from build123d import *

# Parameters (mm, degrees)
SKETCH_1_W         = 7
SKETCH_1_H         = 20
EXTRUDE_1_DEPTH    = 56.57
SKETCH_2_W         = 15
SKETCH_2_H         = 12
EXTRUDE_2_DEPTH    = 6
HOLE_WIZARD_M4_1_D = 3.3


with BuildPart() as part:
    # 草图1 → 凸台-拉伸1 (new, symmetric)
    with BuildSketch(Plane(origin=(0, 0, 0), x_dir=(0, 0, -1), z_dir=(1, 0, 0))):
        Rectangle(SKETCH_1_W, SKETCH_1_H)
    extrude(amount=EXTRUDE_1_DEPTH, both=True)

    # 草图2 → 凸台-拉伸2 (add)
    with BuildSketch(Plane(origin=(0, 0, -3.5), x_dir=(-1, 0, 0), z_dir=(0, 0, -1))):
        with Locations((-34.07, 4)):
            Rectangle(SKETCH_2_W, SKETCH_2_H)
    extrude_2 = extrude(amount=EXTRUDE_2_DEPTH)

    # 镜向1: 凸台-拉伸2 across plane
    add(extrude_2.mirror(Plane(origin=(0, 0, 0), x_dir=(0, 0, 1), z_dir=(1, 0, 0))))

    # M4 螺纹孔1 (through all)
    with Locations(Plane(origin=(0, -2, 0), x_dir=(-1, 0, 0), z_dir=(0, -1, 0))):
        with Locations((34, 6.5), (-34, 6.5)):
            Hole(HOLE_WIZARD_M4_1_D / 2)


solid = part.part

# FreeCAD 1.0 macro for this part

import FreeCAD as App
import Part
import Sketcher
from FreeCAD import Vector


def add_polygon(sketch, points):
    """Adds a closed chain of lines whose ends are joined by coincident constraints."""
    first, n = sketch.GeometryCount, len(points)
    for a, b in zip(points, points[1:] + points[:1]):
        sketch.addGeometry(Part.LineSegment(App.Vector(*a, 0), App.Vector(*b, 0)), False)
    for i in range(n):
        sketch.addConstraint(Sketcher.Constraint("Coincident", first + i, 2, first + (i + 1) % n, 1))

doc = App.newDocument("Part")
params = doc.addObject("Spreadsheet::Sheet", "Params")
for row, (alias, value) in enumerate([
    ("sketch1_width", "20 mm"),
    ("sketch1_height", "7 mm"),
    ("pad1_length", "113.14 mm"),
    ("sketch2_width", "15 mm"),
    ("sketch2_height", "12 mm"),
    ("pad2_length", "6 mm"),
    ("sketch3_diameter", "3.3 mm"),
    ("hole_diameter", "3.3 mm"),
], start=1):
    params.set(f"A{row}", alias)
    params.set(f"B{row}", "=" + value)
    params.setAlias(f"B{row}", alias)

body = doc.addObject("PartDesign::Body", "Body")

sketch1 = doc.addObject("Sketcher::SketchObject", "Sketch")
body.addObject(sketch1)
sketch1.AttachmentSupport = (doc.YZ_Plane, [""])
sketch1.MapMode = "FlatFace"
add_polygon(sketch1, [(10, 4), (-10, 4), (-10, -4), (10, -4)])
sketch1.addConstraint([
    Sketcher.Constraint("Horizontal", 0),
    Sketcher.Constraint("Vertical", 1),
    Sketcher.Constraint("Horizontal", 2),
    Sketcher.Constraint("Vertical", 3),
    Sketcher.Constraint("Symmetric", 0, 2, 2, 2, -1, 1),
    Sketcher.Constraint("DistanceX", 0, 2, 0, 1, 20.0),
    Sketcher.Constraint("DistanceY", 1, 2, 1, 1, 7.0),
])
sketch1.setExpression("Constraints[9]", "Params.sketch1_width")
sketch1.setExpression("Constraints[10]", "Params.sketch1_height")
pad1 = doc.addObject("PartDesign::Pad", "Pad")
body.addObject(pad1)
pad1.Profile = sketch1
pad1.setExpression("Length", "Params.pad1_length")
pad1.Midplane = True

sketch2 = doc.addObject("Sketcher::SketchObject", "Sketch001")
body.addObject(sketch2)
sketch2.AttachmentSupport = (doc.XY_Plane, [""])
sketch2.MapMode = "FlatFace"
sketch2.AttachmentOffset = App.Placement(Vector(0, 0, -3.5), App.Rotation())
add_polygon(sketch2, [(42, 10), (42, -2), (27, -2), (27, 10)])
sketch2.addConstraint([
    Sketcher.Constraint("Vertical", 0),
    Sketcher.Constraint("Horizontal", 1),
    Sketcher.Constraint("Vertical", 2),
    Sketcher.Constraint("Horizontal", 3),
    Sketcher.Constraint("DistanceX", 1, 2, 1, 1, 15.0),
    Sketcher.Constraint("DistanceY", 0, 2, 0, 1, 12.0),
    Sketcher.Constraint("DistanceY", 0, 2, -1, 1, 2.0),
    Sketcher.Constraint("DistanceX", -1, 1, 0, 2, 41.57),
])
sketch2.setExpression("Constraints[8]", "Params.sketch2_width")
sketch2.setExpression("Constraints[9]", "Params.sketch2_height")
pad2 = doc.addObject("PartDesign::Pad", "Pad001")
body.addObject(pad2)
pad2.Profile = sketch2
pad2.setExpression("Length", "Params.pad2_length")
pad2.Reversed = True
doc.recompute()

mirrored = doc.addObject("PartDesign::Mirrored", "Mirrored")
body.addObject(mirrored)
mirrored.Originals = [pad2]
mirrored.MirrorPlane = (doc.YZ_Plane, [""])
body.Tip = mirrored

sketch3 = doc.addObject("Sketcher::SketchObject", "Sketch002")
body.addObject(sketch3)
sketch3.AttachmentSupport = (doc.XZ_Plane, [""])
sketch3.MapMode = "FlatFace"
sketch3.AttachmentOffset = App.Placement(Vector(0, 0, 2), App.Rotation())
sketch3.addGeometry([
    Part.Circle(Vector(-34, -6.5, 0), Vector(0, 0, 1), 1.6),
    Part.Circle(Vector(34, -6.5, 0), Vector(0, 0, 1), 1.6),
], False)
sketch3.addConstraint([
    Sketcher.Constraint("Equal", 0, 1),
    Sketcher.Constraint("Symmetric", 0, 3, 1, 3, -2),
    Sketcher.Constraint("Diameter", 0, 3.3),
    Sketcher.Constraint("DistanceX", 0, 3, -1, 1, 34.0),
    Sketcher.Constraint("DistanceY", 0, 3, -1, 1, 6.5),
])
sketch3.setExpression("Constraints[2]", "Params.sketch3_diameter")
doc.recompute()
hole = doc.addObject("PartDesign::Hole", "Hole")
body.addObject(hole)
hole.Profile = sketch3
hole.ThreadType = "None"
hole.setExpression("Diameter", "Params.hole_diameter")
hole.DepthType = "ThroughAll"

doc.recompute()
